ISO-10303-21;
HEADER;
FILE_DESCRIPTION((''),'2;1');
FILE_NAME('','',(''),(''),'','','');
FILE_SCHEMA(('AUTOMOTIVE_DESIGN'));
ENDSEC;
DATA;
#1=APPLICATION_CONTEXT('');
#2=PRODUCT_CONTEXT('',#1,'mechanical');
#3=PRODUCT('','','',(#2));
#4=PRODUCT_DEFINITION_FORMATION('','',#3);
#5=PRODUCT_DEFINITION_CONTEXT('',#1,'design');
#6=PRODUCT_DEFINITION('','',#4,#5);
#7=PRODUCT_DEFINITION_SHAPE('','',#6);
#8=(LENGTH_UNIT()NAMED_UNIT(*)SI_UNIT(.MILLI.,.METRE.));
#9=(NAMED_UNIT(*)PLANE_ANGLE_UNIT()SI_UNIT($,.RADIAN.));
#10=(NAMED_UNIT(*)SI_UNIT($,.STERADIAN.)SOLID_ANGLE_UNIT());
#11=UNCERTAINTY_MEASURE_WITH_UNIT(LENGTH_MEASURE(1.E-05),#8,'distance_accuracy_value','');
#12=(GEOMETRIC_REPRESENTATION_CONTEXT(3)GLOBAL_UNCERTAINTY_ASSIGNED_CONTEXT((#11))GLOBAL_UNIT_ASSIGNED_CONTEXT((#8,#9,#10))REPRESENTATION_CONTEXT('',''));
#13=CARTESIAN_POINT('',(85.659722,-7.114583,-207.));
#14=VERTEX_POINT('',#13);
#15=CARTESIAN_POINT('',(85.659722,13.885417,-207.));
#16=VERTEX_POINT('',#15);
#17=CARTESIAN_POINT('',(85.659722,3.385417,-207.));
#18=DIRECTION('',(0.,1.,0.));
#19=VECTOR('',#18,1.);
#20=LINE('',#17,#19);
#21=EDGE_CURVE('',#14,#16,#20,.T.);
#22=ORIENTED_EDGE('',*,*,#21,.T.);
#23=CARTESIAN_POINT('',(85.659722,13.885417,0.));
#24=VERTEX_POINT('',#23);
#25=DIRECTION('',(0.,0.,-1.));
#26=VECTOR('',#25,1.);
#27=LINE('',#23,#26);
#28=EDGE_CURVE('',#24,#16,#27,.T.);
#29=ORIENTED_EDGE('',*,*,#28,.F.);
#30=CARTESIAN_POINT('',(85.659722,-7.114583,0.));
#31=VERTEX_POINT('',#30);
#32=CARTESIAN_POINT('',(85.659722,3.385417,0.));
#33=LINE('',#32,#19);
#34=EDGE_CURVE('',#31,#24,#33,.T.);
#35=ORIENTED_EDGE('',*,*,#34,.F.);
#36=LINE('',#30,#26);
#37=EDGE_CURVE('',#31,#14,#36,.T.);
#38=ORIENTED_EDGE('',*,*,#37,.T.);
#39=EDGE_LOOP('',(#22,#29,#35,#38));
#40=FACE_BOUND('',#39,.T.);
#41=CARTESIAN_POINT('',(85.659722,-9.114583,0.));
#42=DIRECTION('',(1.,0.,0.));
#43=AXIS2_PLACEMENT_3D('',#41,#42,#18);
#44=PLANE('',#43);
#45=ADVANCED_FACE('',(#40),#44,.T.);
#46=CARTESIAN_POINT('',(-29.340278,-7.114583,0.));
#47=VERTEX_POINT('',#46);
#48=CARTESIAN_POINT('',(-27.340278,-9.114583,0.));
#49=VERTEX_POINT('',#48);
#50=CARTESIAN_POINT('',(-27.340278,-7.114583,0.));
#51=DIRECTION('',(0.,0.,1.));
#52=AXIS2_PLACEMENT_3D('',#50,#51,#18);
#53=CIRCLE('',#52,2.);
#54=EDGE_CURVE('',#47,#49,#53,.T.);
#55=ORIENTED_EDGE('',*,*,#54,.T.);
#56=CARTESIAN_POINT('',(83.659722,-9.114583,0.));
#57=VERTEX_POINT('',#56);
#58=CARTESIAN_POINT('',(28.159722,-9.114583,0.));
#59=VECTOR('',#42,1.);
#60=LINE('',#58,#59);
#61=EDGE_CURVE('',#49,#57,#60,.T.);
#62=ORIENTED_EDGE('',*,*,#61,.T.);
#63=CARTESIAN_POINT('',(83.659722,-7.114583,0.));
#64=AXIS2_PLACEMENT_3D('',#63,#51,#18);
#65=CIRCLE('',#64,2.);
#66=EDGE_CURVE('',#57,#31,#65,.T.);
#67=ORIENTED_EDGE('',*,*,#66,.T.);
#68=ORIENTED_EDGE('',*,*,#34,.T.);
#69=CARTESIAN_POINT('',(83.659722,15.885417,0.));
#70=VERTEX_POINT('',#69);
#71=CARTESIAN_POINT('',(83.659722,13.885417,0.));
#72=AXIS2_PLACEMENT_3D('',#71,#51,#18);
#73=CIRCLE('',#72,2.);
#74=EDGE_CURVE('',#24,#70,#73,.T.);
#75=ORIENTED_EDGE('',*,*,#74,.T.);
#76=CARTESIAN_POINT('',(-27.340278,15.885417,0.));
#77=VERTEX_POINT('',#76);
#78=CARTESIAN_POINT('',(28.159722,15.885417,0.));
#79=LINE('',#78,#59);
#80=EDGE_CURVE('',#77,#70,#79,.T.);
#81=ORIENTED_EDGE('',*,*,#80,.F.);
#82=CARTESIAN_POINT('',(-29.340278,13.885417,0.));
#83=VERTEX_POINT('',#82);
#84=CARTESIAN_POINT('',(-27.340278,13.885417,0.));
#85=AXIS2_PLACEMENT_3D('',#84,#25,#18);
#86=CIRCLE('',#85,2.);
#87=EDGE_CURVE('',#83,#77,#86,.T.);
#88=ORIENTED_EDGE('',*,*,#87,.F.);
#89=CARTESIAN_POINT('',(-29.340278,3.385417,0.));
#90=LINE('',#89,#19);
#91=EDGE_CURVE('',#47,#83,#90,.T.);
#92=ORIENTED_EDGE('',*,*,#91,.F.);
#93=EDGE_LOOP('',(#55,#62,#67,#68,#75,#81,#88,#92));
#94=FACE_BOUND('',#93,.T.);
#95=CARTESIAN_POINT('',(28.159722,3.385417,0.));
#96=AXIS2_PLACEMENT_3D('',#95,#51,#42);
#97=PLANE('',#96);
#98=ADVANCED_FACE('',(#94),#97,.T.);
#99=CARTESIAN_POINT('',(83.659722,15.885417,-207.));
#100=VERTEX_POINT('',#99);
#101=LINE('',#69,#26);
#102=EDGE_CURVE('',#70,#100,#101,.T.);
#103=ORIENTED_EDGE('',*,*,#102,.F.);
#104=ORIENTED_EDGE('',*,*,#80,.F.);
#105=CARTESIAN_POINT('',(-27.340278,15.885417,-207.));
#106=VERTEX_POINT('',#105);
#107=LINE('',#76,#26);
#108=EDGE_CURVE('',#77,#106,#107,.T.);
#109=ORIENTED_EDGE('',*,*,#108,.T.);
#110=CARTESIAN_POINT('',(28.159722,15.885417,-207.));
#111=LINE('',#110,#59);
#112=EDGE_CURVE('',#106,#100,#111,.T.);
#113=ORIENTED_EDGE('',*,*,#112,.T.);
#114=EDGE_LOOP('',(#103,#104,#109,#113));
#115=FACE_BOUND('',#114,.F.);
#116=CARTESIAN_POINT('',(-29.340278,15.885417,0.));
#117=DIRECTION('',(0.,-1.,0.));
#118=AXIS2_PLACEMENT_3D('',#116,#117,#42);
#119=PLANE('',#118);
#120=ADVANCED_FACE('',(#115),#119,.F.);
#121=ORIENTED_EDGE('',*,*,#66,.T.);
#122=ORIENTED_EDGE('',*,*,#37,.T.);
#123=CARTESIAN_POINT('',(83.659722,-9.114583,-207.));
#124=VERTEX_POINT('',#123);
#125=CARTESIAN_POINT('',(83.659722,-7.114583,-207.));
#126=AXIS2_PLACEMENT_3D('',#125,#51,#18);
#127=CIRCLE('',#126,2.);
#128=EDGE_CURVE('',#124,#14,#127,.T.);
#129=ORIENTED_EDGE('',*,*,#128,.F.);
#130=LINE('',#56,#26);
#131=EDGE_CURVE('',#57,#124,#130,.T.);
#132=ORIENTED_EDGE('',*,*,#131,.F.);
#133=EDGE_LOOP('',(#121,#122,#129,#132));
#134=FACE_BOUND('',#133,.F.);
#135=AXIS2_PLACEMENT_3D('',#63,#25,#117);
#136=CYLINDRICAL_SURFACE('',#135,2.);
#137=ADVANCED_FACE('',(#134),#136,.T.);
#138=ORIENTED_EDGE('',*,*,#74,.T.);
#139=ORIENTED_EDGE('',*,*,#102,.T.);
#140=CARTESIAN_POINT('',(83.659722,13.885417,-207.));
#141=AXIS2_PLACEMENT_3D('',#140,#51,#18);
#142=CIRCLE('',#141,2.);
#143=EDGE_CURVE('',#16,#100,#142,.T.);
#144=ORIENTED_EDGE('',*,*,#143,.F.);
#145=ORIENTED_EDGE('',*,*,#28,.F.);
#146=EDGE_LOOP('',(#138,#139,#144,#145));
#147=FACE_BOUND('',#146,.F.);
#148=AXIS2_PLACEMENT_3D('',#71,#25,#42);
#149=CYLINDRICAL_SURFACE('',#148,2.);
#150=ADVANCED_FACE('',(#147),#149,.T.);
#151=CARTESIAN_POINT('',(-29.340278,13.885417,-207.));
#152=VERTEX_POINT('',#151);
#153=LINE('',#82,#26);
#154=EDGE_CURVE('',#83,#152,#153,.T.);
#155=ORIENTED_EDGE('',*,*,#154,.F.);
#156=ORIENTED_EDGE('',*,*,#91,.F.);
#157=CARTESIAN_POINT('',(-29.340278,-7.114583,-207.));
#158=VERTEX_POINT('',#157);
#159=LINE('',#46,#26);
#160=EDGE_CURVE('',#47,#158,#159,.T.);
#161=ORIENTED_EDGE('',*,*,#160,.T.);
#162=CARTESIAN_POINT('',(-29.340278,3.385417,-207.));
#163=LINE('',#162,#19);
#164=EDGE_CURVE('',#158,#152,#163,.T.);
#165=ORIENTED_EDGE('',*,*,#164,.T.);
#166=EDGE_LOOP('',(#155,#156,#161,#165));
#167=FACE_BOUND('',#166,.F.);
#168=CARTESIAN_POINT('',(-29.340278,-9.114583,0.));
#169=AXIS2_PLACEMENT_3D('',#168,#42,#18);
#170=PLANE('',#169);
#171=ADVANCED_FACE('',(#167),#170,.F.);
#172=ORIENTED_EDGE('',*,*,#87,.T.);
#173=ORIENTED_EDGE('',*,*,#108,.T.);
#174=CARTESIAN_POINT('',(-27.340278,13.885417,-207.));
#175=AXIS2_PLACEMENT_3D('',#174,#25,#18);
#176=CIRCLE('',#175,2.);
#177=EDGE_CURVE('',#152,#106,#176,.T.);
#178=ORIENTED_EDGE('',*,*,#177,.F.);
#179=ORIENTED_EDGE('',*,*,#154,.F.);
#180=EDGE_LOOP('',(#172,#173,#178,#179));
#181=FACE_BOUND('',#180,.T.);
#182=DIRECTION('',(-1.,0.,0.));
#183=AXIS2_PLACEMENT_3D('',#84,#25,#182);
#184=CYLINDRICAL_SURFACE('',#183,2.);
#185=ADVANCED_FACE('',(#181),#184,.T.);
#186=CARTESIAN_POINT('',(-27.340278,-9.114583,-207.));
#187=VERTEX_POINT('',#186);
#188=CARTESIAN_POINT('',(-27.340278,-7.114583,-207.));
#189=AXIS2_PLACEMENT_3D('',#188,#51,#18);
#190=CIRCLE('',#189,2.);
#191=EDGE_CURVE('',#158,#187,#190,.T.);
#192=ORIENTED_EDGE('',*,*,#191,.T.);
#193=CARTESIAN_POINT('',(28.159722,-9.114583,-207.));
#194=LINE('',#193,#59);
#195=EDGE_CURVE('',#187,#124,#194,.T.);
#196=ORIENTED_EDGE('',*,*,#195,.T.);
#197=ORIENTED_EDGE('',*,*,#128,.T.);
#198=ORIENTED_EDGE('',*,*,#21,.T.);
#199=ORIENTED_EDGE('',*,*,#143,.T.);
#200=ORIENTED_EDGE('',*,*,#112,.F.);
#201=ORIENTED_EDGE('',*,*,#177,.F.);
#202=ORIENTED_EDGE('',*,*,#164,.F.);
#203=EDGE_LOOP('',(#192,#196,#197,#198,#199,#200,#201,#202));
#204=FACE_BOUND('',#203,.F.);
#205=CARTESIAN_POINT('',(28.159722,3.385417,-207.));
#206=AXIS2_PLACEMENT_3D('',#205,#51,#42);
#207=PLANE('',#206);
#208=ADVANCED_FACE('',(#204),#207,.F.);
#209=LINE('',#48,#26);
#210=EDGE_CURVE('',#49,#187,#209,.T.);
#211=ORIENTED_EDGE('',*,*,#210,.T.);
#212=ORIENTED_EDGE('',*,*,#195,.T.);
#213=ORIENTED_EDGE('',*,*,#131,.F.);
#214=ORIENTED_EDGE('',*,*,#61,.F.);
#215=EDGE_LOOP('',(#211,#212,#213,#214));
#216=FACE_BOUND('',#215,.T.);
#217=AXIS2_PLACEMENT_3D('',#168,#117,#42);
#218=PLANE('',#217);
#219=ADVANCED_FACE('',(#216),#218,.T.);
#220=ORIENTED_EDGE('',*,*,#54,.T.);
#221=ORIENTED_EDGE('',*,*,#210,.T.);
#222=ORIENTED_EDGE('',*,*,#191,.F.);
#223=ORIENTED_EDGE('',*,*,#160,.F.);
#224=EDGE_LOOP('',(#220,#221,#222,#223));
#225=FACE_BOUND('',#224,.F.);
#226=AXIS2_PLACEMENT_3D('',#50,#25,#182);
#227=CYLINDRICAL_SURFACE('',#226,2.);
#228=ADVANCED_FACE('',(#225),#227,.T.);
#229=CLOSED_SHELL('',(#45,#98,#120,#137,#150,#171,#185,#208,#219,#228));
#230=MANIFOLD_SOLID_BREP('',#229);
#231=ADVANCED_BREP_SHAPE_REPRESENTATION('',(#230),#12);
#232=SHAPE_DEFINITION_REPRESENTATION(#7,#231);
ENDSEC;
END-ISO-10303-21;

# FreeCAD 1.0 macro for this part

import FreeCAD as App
import Part
import Sketcher
from FreeCAD import Vector
Q = App.Units.Quantity


def edges_at(feature, points):
    """Names of the edges that pass closest to the given points."""
    edges = feature.Shape.Edges
    near = lambda p: min(range(len(edges)), key=lambda i: edges[i].distToShape(Part.Vertex(*p))[0])
    return sorted({f"Edge{near(p) + 1}" for p in points})


def add_polygon(sketch, points):
    """Adds a closed chain of lines whose ends are joined by coincident constraints."""
    first, n = sketch.GeometryCount, len(points)
    for a, b in zip(points, points[1:] + points[:1]):
        sketch.addGeometry(Part.LineSegment(App.Vector(*a, 0), App.Vector(*b, 0)), False)
    for i in range(n):
        sketch.addConstraint(Sketcher.Constraint("Coincident", first + i, 2, first + (i + 1) % n, 1))

doc = App.newDocument("Part")
params = doc.addObject("Spreadsheet::Sheet", "Params")
for row, (alias, value) in enumerate([
    ("sketch1_width", "115 mm"),
    ("sketch1_height", "25 mm"),
    ("pad1_length", "207 mm"),
    ("fillet_radius", "2 mm"),
], start=1):
    params.set(f"A{row}", alias)
    params.set(f"B{row}", "=" + value)
    params.setAlias(f"B{row}", alias)

body = doc.addObject("PartDesign::Body", "Body")

sketch1 = body.newObject("Sketcher::SketchObject", "Sketch")
sketch1.AttachmentSupport = (doc.getObject("XY_Plane"), [""])
sketch1.MapMode = "FlatFace"
add_polygon(sketch1, [(-29, 16), (-29, -9), (86, -9), (86, 16)])
sketch1.addConstraint(Sketcher.Constraint("Vertical", 0))
sketch1.addConstraint(Sketcher.Constraint("Horizontal", 1))
sketch1.addConstraint(Sketcher.Constraint("Vertical", 2))
sketch1.addConstraint(Sketcher.Constraint("Horizontal", 3))
sketch1.addConstraint(Sketcher.Constraint("DistanceX", 1, 1, 1, 2, Q("115 mm")))
sketch1.addConstraint(Sketcher.Constraint("DistanceY", 0, 2, 0, 1, Q("25 mm")))
sketch1.addConstraint(Sketcher.Constraint("DistanceX", 0, 2, -1, 1, Q("29.340278 mm")))
sketch1.addConstraint(Sketcher.Constraint("DistanceY", 0, 2, -1, 1, Q("9.114583 mm")))
sketch1.setExpression("Constraints[8]", "Params.sketch1_width")
sketch1.setExpression("Constraints[9]", "Params.sketch1_height")
pad1 = body.newObject("PartDesign::Pad", "Pad")
pad1.Profile = sketch1
pad1.setExpression("Length", "Params.pad1_length")
pad1.Reversed = True
doc.recompute()

fillet = body.newObject("PartDesign::Fillet", "Fillet")
fillet.Base = (pad1, edges_at(pad1, [
    (-29.34, 15.885, -103.5),
    (85.66, 15.885, -103.5),
    (85.66, -9.115, -103.5),
    (-29.34, -9.115, -103.5),
]))
fillet.setExpression("Radius", "Params.fillet_radius")

doc.recompute()
